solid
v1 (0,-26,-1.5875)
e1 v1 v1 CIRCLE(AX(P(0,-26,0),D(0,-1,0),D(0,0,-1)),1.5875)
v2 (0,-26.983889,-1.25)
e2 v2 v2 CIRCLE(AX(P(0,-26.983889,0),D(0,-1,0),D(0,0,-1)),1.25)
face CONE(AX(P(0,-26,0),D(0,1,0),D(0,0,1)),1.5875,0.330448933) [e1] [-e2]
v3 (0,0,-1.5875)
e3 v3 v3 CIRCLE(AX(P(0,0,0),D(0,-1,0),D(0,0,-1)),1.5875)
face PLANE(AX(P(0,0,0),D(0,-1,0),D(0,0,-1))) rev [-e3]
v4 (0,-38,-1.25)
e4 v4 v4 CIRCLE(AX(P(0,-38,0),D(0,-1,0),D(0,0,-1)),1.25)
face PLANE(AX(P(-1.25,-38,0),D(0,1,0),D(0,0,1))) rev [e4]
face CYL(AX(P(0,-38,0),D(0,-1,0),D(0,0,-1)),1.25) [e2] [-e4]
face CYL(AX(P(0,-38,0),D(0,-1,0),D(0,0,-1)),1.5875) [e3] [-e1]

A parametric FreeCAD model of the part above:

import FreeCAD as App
import Part
import Sketcher
from FreeCAD import Vector

doc = App.newDocument("Part")
body = doc.addObject("PartDesign::Body", "Body")

# Sketch on XY plane
sketch1 = body.newObject("Sketcher::SketchObject", "Sketch")
sketch1.AttachmentSupport = (doc.getObject("XY_Plane"), [""])
sketch1.MapMode = "FlatFace"
sketch1.addGeometry(Part.LineSegment(Vector(0, 0, 0), Vector(-1.6, 0, 0)), False)
sketch1.addGeometry(Part.LineSegment(Vector(-1.6, 0, 0), Vector(-1.6, -26, 0)), False)
sketch1.addGeometry(Part.LineSegment(Vector(-1.6, -26, 0), Vector(-1.2, -27, 0)), False)
sketch1.addGeometry(Part.LineSegment(Vector(-1.2, -27, 0), Vector(-1.2, -38, 0)), False)
sketch1.addGeometry(Part.LineSegment(Vector(-1.2, -38, 0), Vector(0, -38, 0)), False)
sketch1.addGeometry(Part.LineSegment(Vector(0, -38, 0), Vector(0, 0, 0)), False)
sketch1.addConstraint(Sketcher.Constraint("Coincident", 0, 2, 1, 1))
sketch1.addConstraint(Sketcher.Constraint("Coincident", 1, 2, 2, 1))
sketch1.addConstraint(Sketcher.Constraint("Coincident", 2, 2, 3, 1))
sketch1.addConstraint(Sketcher.Constraint("Coincident", 3, 2, 4, 1))
sketch1.addConstraint(Sketcher.Constraint("Coincident", 4, 2, 5, 1))
sketch1.addConstraint(Sketcher.Constraint("Coincident", 5, 2, 0, 1))
sketch1.addConstraint(Sketcher.Constraint("Horizontal", 0))
sketch1.addConstraint(Sketcher.Constraint("Vertical", 1))
sketch1.addConstraint(Sketcher.Constraint("Vertical", 3))
sketch1.addConstraint(Sketcher.Constraint("Horizontal", 4))
sketch1.addConstraint(Sketcher.Constraint("Vertical", 5))
sketch1.addConstraint(Sketcher.Constraint("Coincident", 5, 2, -1, 1))
sketch1.addConstraint(Sketcher.Constraint("DistanceY", 1, 2, 1, 1, 26.0))
sketch1.addConstraint(Sketcher.Constraint("DistanceY", 5, 1, 5, 2, 38.0))
sketch1.addConstraint(Sketcher.Constraint("DistanceX", 4, 1, 4, 2, 1.25))
sketch1.addConstraint(Sketcher.Constraint("DistanceX", 0, 2, 0, 1, 1.5875))
sketch1.addConstraint(Sketcher.Constraint("DistanceY", 3, 2, 3, 1, 11.016111))
revolution = body.newObject("PartDesign::Revolution", "Revolution")
revolution.Profile = sketch1
revolution.ReferenceAxis = (sketch1, ["V_Axis"])
revolution.Angle = 360

doc.recompute()
